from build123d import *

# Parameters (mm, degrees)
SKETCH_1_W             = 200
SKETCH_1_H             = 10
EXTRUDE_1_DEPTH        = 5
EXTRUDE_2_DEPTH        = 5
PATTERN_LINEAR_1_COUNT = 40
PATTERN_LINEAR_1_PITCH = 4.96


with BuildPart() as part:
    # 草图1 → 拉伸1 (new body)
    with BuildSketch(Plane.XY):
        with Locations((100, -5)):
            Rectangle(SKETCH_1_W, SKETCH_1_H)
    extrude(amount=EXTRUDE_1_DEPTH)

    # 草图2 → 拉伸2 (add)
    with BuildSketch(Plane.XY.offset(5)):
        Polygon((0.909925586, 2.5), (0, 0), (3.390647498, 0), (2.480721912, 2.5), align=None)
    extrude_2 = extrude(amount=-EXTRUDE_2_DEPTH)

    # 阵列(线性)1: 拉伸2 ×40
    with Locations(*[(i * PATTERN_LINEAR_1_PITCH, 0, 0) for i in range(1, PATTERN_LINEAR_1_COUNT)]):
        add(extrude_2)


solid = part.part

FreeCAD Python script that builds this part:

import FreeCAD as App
import Part
import Sketcher
Q = App.Units.Quantity


def add_polygon(sketch, points):
    """Adds a closed chain of lines whose ends are joined by coincident constraints."""
    first, n = sketch.GeometryCount, len(points)
    for a, b in zip(points, points[1:] + points[:1]):
        sketch.addGeometry(Part.LineSegment(App.Vector(*a, 0), App.Vector(*b, 0)), False)
    for i in range(n):
        sketch.addConstraint(Sketcher.Constraint("Coincident", first + i, 2, first + (i + 1) % n, 1))

doc = App.newDocument("Part")
body = doc.addObject("PartDesign::Body", "Body")

sketch1 = body.newObject("Sketcher::SketchObject", "Sketch")
sketch1.AttachmentSupport = (doc.getObject("XY_Plane"), [""])
sketch1.MapMode = "FlatFace"
add_polygon(sketch1, [(0, 0), (0, -10), (200, -10), (200, 0)])
sketch1.addConstraint(Sketcher.Constraint("Vertical", 0))
sketch1.addConstraint(Sketcher.Constraint("Horizontal", 1))
sketch1.addConstraint(Sketcher.Constraint("Vertical", 2))
sketch1.addConstraint(Sketcher.Constraint("Horizontal", 3))
sketch1.addConstraint(Sketcher.Constraint("Coincident", 3, 2, -1, 1))
sketch1.addConstraint(Sketcher.Constraint("DistanceX", 1, 1, 1, 2, Q("200 mm")))
sketch1.addConstraint(Sketcher.Constraint("DistanceY", 0, 2, 0, 1, Q("10 mm")))
pad1 = body.newObject("PartDesign::Pad", "Pad")
pad1.Profile = sketch1
pad1.Length = 5

sketch2 = body.newObject("Sketcher::SketchObject", "Sketch001")
sketch2.AttachmentSupport = (doc.getObject("XY_Plane"), [""])
sketch2.MapMode = "FlatFace"
sketch2.AttachmentOffset = App.Placement(App.Vector(0, 0, 5), App.Rotation())
add_polygon(sketch2, [(0.9, 2.5), (0, 0), (3.4, 0), (2.5, 2.5)])
sketch2.addConstraint(Sketcher.Constraint("Horizontal", 1))
sketch2.addConstraint(Sketcher.Constraint("Horizontal", 3))
sketch2.addConstraint(Sketcher.Constraint("Coincident", 0, 2, -1, 1))
sketch2.addConstraint(Sketcher.Constraint("Equal", 0, 2))
sketch2.addConstraint(Sketcher.Constraint("Angle", 0, Q("-110 deg")))
sketch2.addConstraint(Sketcher.Constraint("DistanceY", -1, 1, 2, 2, Q("2.5 mm")))
sketch2.addConstraint(Sketcher.Constraint("DistanceX", 1, 1, 1, 2, Q("3.390647 mm")))
pad2 = body.newObject("PartDesign::Pad", "Pad001")
pad2.Profile = sketch2
pad2.Length = 5
pad2.Reversed = True
doc.recompute()

linearpattern = body.newObject("PartDesign::LinearPattern", "LinearPattern")
linearpattern.Originals = [pad2]
linearpattern.Direction = (doc.getObject("X_Axis"), [""])
linearpattern.Mode = "offset"
linearpattern.Offset = 4.96
linearpattern.Occurrences = 40
body.Tip = linearpattern

doc.recompute()
